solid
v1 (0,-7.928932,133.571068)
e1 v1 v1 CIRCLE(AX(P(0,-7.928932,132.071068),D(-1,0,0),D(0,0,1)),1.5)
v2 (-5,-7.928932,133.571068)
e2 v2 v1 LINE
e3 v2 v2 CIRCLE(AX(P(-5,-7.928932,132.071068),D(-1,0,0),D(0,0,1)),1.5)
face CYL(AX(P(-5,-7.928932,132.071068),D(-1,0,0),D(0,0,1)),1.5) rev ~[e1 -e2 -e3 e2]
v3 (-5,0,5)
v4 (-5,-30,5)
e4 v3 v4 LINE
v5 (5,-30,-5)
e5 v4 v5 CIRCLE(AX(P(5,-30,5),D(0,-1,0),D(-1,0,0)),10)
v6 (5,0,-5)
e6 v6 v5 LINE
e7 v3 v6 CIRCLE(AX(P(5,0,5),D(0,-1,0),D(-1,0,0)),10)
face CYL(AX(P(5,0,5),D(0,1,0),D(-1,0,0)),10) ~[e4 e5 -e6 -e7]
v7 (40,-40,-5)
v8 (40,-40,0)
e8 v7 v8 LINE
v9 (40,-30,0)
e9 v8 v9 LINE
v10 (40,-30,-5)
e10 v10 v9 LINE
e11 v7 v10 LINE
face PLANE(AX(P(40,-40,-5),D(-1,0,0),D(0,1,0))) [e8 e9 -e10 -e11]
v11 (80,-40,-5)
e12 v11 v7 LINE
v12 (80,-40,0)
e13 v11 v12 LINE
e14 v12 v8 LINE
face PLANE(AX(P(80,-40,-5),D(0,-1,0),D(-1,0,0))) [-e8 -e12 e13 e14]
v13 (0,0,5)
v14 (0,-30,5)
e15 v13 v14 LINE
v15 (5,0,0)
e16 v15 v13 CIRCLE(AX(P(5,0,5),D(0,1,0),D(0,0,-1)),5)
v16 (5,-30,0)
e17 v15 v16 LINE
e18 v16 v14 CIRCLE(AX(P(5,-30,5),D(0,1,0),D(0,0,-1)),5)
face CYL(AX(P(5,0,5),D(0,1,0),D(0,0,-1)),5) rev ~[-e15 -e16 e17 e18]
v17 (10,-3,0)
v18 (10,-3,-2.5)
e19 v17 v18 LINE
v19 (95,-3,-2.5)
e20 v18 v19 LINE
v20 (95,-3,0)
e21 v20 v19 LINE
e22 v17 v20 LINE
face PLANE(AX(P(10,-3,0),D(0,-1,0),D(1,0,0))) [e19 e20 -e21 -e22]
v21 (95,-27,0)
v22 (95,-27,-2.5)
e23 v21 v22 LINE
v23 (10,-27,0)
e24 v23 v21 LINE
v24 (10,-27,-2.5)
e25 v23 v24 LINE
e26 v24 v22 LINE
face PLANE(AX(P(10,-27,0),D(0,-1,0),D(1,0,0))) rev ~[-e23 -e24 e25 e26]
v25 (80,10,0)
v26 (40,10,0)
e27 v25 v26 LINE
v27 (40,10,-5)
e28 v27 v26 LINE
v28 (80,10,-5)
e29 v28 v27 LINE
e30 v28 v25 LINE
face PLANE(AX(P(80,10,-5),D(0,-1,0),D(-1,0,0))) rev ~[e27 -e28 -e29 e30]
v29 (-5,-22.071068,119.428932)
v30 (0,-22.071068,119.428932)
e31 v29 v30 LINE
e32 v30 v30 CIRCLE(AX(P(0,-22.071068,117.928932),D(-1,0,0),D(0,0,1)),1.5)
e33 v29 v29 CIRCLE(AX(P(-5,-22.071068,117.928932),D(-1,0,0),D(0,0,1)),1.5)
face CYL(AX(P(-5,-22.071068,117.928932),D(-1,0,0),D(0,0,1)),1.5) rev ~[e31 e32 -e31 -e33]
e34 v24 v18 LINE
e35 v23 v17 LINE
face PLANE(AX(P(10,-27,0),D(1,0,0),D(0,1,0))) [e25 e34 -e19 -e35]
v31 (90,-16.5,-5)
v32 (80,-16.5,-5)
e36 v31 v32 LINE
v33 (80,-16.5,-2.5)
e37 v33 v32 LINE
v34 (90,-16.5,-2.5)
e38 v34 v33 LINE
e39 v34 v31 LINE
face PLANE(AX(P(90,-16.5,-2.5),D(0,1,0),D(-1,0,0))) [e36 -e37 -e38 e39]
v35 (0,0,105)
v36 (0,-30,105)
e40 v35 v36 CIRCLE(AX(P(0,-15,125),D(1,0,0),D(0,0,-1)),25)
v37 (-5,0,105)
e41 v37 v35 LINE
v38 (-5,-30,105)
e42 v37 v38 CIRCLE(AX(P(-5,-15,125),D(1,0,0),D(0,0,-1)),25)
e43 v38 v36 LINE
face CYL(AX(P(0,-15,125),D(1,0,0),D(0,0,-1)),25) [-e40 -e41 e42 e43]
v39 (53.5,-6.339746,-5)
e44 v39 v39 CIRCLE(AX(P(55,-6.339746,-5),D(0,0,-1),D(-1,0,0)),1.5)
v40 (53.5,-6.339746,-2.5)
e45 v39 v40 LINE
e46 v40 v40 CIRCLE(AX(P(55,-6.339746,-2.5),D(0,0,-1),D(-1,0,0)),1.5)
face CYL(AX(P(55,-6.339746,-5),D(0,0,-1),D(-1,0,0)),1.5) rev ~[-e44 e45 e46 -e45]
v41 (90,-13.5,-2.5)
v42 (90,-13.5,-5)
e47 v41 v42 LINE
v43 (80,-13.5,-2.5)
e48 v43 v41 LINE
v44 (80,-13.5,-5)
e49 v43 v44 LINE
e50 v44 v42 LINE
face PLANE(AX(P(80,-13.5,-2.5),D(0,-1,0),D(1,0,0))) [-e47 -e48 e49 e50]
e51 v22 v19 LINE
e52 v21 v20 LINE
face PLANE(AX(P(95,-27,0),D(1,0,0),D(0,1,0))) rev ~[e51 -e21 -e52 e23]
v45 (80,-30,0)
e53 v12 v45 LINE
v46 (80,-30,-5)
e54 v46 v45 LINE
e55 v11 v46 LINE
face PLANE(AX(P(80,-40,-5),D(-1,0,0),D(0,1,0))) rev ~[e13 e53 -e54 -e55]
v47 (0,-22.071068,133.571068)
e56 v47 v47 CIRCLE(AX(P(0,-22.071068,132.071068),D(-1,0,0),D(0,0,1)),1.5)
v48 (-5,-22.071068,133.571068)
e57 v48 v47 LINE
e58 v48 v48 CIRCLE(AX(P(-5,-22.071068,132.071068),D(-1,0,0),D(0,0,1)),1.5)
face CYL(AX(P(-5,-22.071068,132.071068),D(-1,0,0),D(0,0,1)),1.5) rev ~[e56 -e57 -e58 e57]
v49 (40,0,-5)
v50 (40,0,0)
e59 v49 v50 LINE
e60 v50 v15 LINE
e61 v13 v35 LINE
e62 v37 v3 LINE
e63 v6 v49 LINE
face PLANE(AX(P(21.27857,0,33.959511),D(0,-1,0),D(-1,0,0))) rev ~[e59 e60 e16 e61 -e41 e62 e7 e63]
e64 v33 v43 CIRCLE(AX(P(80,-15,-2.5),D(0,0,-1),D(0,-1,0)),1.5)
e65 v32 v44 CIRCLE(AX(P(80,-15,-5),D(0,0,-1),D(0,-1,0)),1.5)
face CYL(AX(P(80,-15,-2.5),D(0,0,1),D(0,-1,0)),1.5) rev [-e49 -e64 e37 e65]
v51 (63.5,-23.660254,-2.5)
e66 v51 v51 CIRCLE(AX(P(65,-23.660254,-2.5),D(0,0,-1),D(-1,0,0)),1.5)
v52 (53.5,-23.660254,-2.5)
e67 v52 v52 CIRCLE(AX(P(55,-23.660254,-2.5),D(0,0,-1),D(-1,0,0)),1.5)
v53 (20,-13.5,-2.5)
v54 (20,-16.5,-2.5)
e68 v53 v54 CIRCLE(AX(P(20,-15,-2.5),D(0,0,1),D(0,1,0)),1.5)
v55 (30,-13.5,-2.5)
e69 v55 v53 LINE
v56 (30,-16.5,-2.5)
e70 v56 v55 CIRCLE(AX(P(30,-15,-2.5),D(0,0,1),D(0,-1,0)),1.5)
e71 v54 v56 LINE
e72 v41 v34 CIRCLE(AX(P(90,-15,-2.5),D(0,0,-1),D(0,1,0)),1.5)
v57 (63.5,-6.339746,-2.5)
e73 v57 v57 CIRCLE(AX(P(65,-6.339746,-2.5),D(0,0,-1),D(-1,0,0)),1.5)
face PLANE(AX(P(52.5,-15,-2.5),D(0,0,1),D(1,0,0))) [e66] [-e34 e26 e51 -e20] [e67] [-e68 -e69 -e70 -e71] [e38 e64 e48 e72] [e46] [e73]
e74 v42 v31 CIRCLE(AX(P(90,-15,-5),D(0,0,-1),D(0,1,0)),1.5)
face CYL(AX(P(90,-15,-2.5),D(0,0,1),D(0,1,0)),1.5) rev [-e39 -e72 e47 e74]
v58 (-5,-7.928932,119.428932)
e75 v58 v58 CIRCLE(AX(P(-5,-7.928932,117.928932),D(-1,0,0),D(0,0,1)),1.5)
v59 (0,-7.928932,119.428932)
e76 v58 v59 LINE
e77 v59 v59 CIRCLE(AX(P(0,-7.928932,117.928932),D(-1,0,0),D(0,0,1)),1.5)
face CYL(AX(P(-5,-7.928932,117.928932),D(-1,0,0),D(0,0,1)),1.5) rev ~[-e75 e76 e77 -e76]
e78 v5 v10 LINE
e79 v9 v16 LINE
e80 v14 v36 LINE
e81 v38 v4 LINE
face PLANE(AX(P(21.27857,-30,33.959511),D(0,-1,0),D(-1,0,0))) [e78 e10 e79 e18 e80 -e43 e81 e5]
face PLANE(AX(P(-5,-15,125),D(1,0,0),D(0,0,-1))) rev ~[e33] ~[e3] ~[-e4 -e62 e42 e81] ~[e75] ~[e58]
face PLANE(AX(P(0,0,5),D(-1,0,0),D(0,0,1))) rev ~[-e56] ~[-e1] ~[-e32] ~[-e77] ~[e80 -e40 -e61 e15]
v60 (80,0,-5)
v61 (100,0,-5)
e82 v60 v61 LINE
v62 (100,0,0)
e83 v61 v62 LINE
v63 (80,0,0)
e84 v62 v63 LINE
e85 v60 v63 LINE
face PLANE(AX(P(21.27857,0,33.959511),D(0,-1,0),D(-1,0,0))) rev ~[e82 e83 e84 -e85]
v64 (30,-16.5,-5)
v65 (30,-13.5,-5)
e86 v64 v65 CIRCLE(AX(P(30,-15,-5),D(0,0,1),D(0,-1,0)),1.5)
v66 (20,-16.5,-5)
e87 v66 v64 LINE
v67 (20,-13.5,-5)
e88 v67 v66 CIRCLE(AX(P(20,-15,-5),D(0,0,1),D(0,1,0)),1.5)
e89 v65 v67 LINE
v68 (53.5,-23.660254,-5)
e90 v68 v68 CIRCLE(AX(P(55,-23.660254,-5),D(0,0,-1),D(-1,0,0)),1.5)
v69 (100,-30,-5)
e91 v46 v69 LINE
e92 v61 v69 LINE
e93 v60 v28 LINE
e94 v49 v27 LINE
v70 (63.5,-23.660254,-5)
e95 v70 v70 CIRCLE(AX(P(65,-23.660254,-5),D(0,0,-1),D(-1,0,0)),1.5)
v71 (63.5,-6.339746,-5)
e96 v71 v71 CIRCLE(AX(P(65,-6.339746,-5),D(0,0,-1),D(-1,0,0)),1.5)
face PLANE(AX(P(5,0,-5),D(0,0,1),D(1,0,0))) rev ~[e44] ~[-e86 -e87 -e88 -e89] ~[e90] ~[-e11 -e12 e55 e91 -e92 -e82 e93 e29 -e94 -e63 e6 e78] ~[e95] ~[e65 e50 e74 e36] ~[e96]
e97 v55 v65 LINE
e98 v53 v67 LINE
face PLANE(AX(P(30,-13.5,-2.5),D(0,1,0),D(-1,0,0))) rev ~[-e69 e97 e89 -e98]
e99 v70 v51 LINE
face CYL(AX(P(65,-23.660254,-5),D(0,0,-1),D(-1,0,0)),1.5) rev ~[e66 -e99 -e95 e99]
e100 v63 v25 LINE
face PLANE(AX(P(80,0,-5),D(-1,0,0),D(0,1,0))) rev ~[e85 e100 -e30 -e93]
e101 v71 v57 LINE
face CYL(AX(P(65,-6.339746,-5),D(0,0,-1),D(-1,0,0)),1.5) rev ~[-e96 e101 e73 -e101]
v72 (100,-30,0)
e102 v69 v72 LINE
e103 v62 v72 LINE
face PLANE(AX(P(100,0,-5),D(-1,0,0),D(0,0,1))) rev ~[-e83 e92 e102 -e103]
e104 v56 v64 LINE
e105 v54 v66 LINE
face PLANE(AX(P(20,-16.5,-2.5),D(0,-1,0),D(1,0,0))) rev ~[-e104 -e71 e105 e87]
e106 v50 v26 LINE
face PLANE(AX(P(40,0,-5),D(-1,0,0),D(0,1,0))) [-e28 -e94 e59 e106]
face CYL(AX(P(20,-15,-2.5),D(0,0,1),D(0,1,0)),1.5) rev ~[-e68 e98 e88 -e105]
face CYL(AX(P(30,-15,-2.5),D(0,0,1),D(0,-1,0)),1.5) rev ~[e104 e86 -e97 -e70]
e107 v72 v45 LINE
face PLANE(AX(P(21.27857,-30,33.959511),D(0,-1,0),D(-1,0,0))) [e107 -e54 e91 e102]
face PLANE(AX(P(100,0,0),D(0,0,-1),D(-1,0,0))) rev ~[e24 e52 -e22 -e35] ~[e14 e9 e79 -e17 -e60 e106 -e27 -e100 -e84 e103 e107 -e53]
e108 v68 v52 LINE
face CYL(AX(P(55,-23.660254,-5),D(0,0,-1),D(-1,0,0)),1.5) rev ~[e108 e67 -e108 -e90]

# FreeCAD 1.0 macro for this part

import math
import FreeCAD as App
import Part
import Sketcher

doc = App.newDocument("Part")
body = doc.addObject("PartDesign::Body", "Body")

sketch1 = doc.addObject("Sketcher::SketchObject", "Sketch")
body.addObject(sketch1)
sketch1.AttachmentSupport = (doc.XZ_Plane, [""])
sketch1.MapMode = "FlatFace"
sketch1.addGeometry(Part.LineSegment(App.Vector(0, 125, 0), App.Vector(0, 5, 0)), False)
sketch1.addGeometry(Part.ArcOfCircle(Part.Circle(App.Vector(5, 5, 0), App.Vector(0, 0, 1), 5), math.radians(180), math.radians(270)), False)
sketch1.addGeometry(Part.LineSegment(App.Vector(5, 0, 0), App.Vector(100, 0, 0)), False)
sketch1.addGeometry(Part.LineSegment(App.Vector(100, 0, 0), App.Vector(100, -5, 0)), False)
sketch1.addGeometry(Part.LineSegment(App.Vector(100, -5, 0), App.Vector(5, -5, 0)), False)
sketch1.addGeometry(Part.ArcOfCircle(Part.Circle(App.Vector(5, 5, 0), App.Vector(0, 0, 1), 10), math.radians(180), math.radians(270)), False)
sketch1.addGeometry(Part.LineSegment(App.Vector(-5, 5, 0), App.Vector(-5, 125, 0)), False)
sketch1.addGeometry(Part.LineSegment(App.Vector(-5, 125, 0), App.Vector(0, 125, 0)), False)
sketch1.addConstraint(Sketcher.Constraint("Tangent", 0, 2, 1, 1))
sketch1.addConstraint(Sketcher.Constraint("Tangent", 1, 2, 2, 1))
sketch1.addConstraint(Sketcher.Constraint("Coincident", 2, 2, 3, 1))
sketch1.addConstraint(Sketcher.Constraint("Coincident", 3, 2, 4, 1))
sketch1.addConstraint(Sketcher.Constraint("Tangent", 4, 2, 5, 2))
sketch1.addConstraint(Sketcher.Constraint("Tangent", 5, 1, 6, 1))
sketch1.addConstraint(Sketcher.Constraint("Coincident", 6, 2, 7, 1))
sketch1.addConstraint(Sketcher.Constraint("Coincident", 7, 2, 0, 1))
sketch1.addConstraint(Sketcher.Constraint("Vertical", 0))
sketch1.addConstraint(Sketcher.Constraint("Horizontal", 2))
sketch1.addConstraint(Sketcher.Constraint("Vertical", 3))
sketch1.addConstraint(Sketcher.Constraint("Horizontal", 4))
sketch1.addConstraint(Sketcher.Constraint("Vertical", 6))
sketch1.addConstraint(Sketcher.Constraint("Horizontal", 7))
sketch1.addConstraint(Sketcher.Constraint("Coincident", 5, 3, 1, 3))
sketch1.addConstraint(Sketcher.Constraint("Symmetric", 4, 2, 5, 1, -1, 1))
sketch1.addConstraint(Sketcher.Constraint("PointOnObject", 0, 2, -2))
sketch1.addConstraint(Sketcher.Constraint("Radius", 1, 5.0))
sketch1.addConstraint(Sketcher.Constraint("DistanceX", 2, 1, 2, 2, 95.0))
sketch1.addConstraint(Sketcher.Constraint("DistanceY", 0, 2, 0, 1, 120.0))
pad1 = doc.addObject("PartDesign::Pad", "Pad")
body.addObject(pad1)
pad1.Profile = sketch1
pad1.Length = 30

sketch2 = doc.addObject("Sketcher::SketchObject", "Sketch001")
body.addObject(sketch2)
sketch2.AttachmentSupport = (doc.YZ_Plane, [""])
sketch2.MapMode = "FlatFace"
sketch2.addGeometry(Part.Circle(App.Vector(-15, 125, 0), App.Vector(0, 0, 1), 25), False)
sketch2.addConstraint(Sketcher.Constraint("Diameter", 0, 50.0))
sketch2.addConstraint(Sketcher.Constraint("DistanceX", 0, 3, -1, 1, 15.0))
sketch2.addConstraint(Sketcher.Constraint("DistanceY", -1, 1, 0, 3, 125.0))
pad2 = doc.addObject("PartDesign::Pad", "Pad001")
body.addObject(pad2)
pad2.Profile = sketch2
pad2.Length = 5
pad2.Reversed = True

sketch3 = doc.addObject("Sketcher::SketchObject", "Sketch002")
body.addObject(sketch3)
sketch3.AttachmentSupport = (doc.XY_Plane, [""])
sketch3.MapMode = "FlatFace"
sketch3.addGeometry(Part.LineSegment(App.Vector(10, -3, 0), App.Vector(10, -27, 0)), False)
sketch3.addGeometry(Part.LineSegment(App.Vector(10, -27, 0), App.Vector(95, -27, 0)), False)
sketch3.addGeometry(Part.LineSegment(App.Vector(95, -27, 0), App.Vector(95, -3, 0)), False)
sketch3.addGeometry(Part.LineSegment(App.Vector(95, -3, 0), App.Vector(10, -3, 0)), False)
sketch3.addConstraint(Sketcher.Constraint("Coincident", 0, 2, 1, 1))
sketch3.addConstraint(Sketcher.Constraint("Coincident", 1, 2, 2, 1))
sketch3.addConstraint(Sketcher.Constraint("Coincident", 2, 2, 3, 1))
sketch3.addConstraint(Sketcher.Constraint("Coincident", 3, 2, 0, 1))
sketch3.addConstraint(Sketcher.Constraint("Vertical", 0))
sketch3.addConstraint(Sketcher.Constraint("Horizontal", 1))
sketch3.addConstraint(Sketcher.Constraint("Vertical", 2))
sketch3.addConstraint(Sketcher.Constraint("Horizontal", 3))
sketch3.addConstraint(Sketcher.Constraint("DistanceX", 1, 1, 1, 2, 85.0))
sketch3.addConstraint(Sketcher.Constraint("DistanceY", 0, 2, 0, 1, 24.0))
sketch3.addConstraint(Sketcher.Constraint("DistanceX", -1, 1, 0, 2, 10.0))
sketch3.addConstraint(Sketcher.Constraint("DistanceY", 0, 2, -1, 1, 27.0))
pocket1 = doc.addObject("PartDesign::Pocket", "Pocket")
body.addObject(pocket1)
pocket1.Profile = sketch3
pocket1.Length = 2.5

sketch4 = doc.addObject("Sketcher::SketchObject", "Sketch003")
body.addObject(sketch4)
sketch4.AttachmentSupport = (doc.YZ_Plane, [""])
sketch4.MapMode = "FlatFace"
sketch4.AttachmentOffset = App.Placement(App.Vector(0, 0, -5), App.Rotation())
sketch4.addGeometry(Part.Circle(App.Vector(-7.9, 132.1, 0), App.Vector(0, 0, 1), 1.5), False)
sketch4.addGeometry(Part.Circle(App.Vector(-22.1, 132.1, 0), App.Vector(0, 0, 1), 1.5), False)
sketch4.addGeometry(Part.Circle(App.Vector(-22.1, 117.9, 0), App.Vector(0, 0, 1), 1.5), False)
sketch4.addGeometry(Part.Circle(App.Vector(-7.9, 117.9, 0), App.Vector(0, 0, 1), 1.5), False)
sketch4.addConstraint(Sketcher.Constraint("Equal", 0, 1))
sketch4.addConstraint(Sketcher.Constraint("Equal", 1, 2))
sketch4.addConstraint(Sketcher.Constraint("Equal", 2, 3))
sketch4.addConstraint(Sketcher.Constraint("Horizontal", 0, 3, 1, 3))
sketch4.addConstraint(Sketcher.Constraint("Horizontal", 2, 3, 3, 3))
sketch4.addConstraint(Sketcher.Constraint("Vertical", 1, 3, 2, 3))
sketch4.addConstraint(Sketcher.Constraint("Vertical", 0, 3, 3, 3))
sketch4.addConstraint(Sketcher.Constraint("Diameter", 0, 3.0))
sketch4.addConstraint(Sketcher.Constraint("DistanceX", 0, 3, -1, 1, 7.928932))
sketch4.addConstraint(Sketcher.Constraint("DistanceY", -1, 1, 0, 3, 132.071068))
sketch4.addConstraint(Sketcher.Constraint("DistanceX", 1, 3, -1, 1, 22.071068))
sketch4.addConstraint(Sketcher.Constraint("DistanceY", -1, 1, 2, 3, 117.928932))
pocket2 = doc.addObject("PartDesign::Pocket", "Pocket001")
body.addObject(pocket2)
pocket2.Profile = sketch4
pocket2.Length = 5
pocket2.Reversed = True

sketch5 = doc.addObject("Sketcher::SketchObject", "Sketch004")
body.addObject(sketch5)
sketch5.AttachmentSupport = (doc.XY_Plane, [""])
sketch5.MapMode = "FlatFace"
sketch5.AttachmentOffset = App.Placement(App.Vector(0, 0, -5), App.Rotation())
sketch5.addGeometry(Part.LineSegment(App.Vector(80, 10, 0), App.Vector(80, 0, 0)), False)
sketch5.addGeometry(Part.LineSegment(App.Vector(80, 0, 0), App.Vector(40, 0, 0)), False)
sketch5.addGeometry(Part.LineSegment(App.Vector(40, 0, 0), App.Vector(40, 10, 0)), False)
sketch5.addGeometry(Part.LineSegment(App.Vector(40, 10, 0), App.Vector(80, 10, 0)), False)
sketch5.addGeometry(Part.LineSegment(App.Vector(80, -30, 0), App.Vector(80, -40, 0)), False)
sketch5.addGeometry(Part.LineSegment(App.Vector(80, -40, 0), App.Vector(40, -40, 0)), False)
sketch5.addGeometry(Part.LineSegment(App.Vector(40, -40, 0), App.Vector(40, -30, 0)), False)
sketch5.addGeometry(Part.LineSegment(App.Vector(40, -30, 0), App.Vector(80, -30, 0)), False)
sketch5.addConstraint(Sketcher.Constraint("Coincident", 0, 2, 1, 1))
sketch5.addConstraint(Sketcher.Constraint("Coincident", 1, 2, 2, 1))
sketch5.addConstraint(Sketcher.Constraint("Coincident", 2, 2, 3, 1))
sketch5.addConstraint(Sketcher.Constraint("Coincident", 3, 2, 0, 1))
sketch5.addConstraint(Sketcher.Constraint("Coincident", 4, 2, 5, 1))
sketch5.addConstraint(Sketcher.Constraint("Coincident", 5, 2, 6, 1))
sketch5.addConstraint(Sketcher.Constraint("Coincident", 6, 2, 7, 1))
sketch5.addConstraint(Sketcher.Constraint("Coincident", 7, 2, 4, 1))
sketch5.addConstraint(Sketcher.Constraint("Vertical", 0))
sketch5.addConstraint(Sketcher.Constraint("Horizontal", 1))
sketch5.addConstraint(Sketcher.Constraint("Vertical", 2))
sketch5.addConstraint(Sketcher.Constraint("Horizontal", 3))
sketch5.addConstraint(Sketcher.Constraint("Vertical", 4))
sketch5.addConstraint(Sketcher.Constraint("Horizontal", 5))
sketch5.addConstraint(Sketcher.Constraint("Vertical", 6))
sketch5.addConstraint(Sketcher.Constraint("Horizontal", 7))
sketch5.addConstraint(Sketcher.Constraint("PointOnObject", 0, 2, -1))
sketch5.addConstraint(Sketcher.Constraint("Vertical", 3, 2, 4, 2))
sketch5.addConstraint(Sketcher.Constraint("Vertical", 2, 2, 5, 2))
sketch5.addConstraint(Sketcher.Constraint("Equal", 2, 4))
sketch5.addConstraint(Sketcher.Constraint("DistanceX", 1, 2, 1, 1, 40.0))
sketch5.addConstraint(Sketcher.Constraint("DistanceY", 0, 2, 0, 1, 10.0))
sketch5.addConstraint(Sketcher.Constraint("DistanceX", -1, 1, 0, 2, 80.0))
sketch5.addConstraint(Sketcher.Constraint("DistanceY", 4, 2, -1, 1, 40.0))
pad3 = doc.addObject("PartDesign::Pad", "Pad002")
body.addObject(pad3)
pad3.Profile = sketch5
pad3.Length = 5

sketch6 = doc.addObject("Sketcher::SketchObject", "Sketch005")
body.addObject(sketch6)
sketch6.AttachmentSupport = (doc.XY_Plane, [""])
sketch6.MapMode = "FlatFace"
sketch6.AttachmentOffset = App.Placement(App.Vector(0, 0, -2.5), App.Rotation())
sketch6.addGeometry(Part.LineSegment(App.Vector(80, -16.5, 0), App.Vector(90, -16.5, 0)), False)
sketch6.addGeometry(Part.ArcOfCircle(Part.Circle(App.Vector(90, -15, 0), App.Vector(0, 0, 1), 1.5), math.radians(-90), math.radians(90)), False)
sketch6.addGeometry(Part.LineSegment(App.Vector(90, -13.5, 0), App.Vector(80, -13.5, 0)), False)
sketch6.addGeometry(Part.ArcOfCircle(Part.Circle(App.Vector(80, -15, 0), App.Vector(0, 0, 1), 1.5), math.radians(90), math.radians(270)), False)
sketch6.addGeometry(Part.LineSegment(App.Vector(20, -16.5, 0), App.Vector(30, -16.5, 0)), False)
sketch6.addGeometry(Part.ArcOfCircle(Part.Circle(App.Vector(30, -15, 0), App.Vector(0, 0, 1), 1.5), math.radians(-90), math.radians(90)), False)
sketch6.addGeometry(Part.LineSegment(App.Vector(30, -13.5, 0), App.Vector(20, -13.5, 0)), False)
sketch6.addGeometry(Part.ArcOfCircle(Part.Circle(App.Vector(20, -15, 0), App.Vector(0, 0, 1), 1.5), math.radians(90), math.radians(270)), False)
sketch6.addConstraint(Sketcher.Constraint("Tangent", 0, 2, 1, 1))
sketch6.addConstraint(Sketcher.Constraint("Tangent", 1, 2, 2, 1))
sketch6.addConstraint(Sketcher.Constraint("Tangent", 2, 2, 3, 1))
sketch6.addConstraint(Sketcher.Constraint("Tangent", 3, 2, 0, 1))
sketch6.addConstraint(Sketcher.Constraint("Tangent", 4, 2, 5, 1))
sketch6.addConstraint(Sketcher.Constraint("Tangent", 5, 2, 6, 1))
sketch6.addConstraint(Sketcher.Constraint("Tangent", 6, 2, 7, 1))
sketch6.addConstraint(Sketcher.Constraint("Tangent", 7, 2, 4, 1))
sketch6.addConstraint(Sketcher.Constraint("Horizontal", 0))
sketch6.addConstraint(Sketcher.Constraint("Horizontal", 2))
sketch6.addConstraint(Sketcher.Constraint("Horizontal", 4))
sketch6.addConstraint(Sketcher.Constraint("Horizontal", 6))
sketch6.addConstraint(Sketcher.Constraint("Equal", 3, 5))
sketch6.addConstraint(Sketcher.Constraint("Horizontal", 3, 3, 5, 3))
sketch6.addConstraint(Sketcher.Constraint("Equal", 2, 4))
sketch6.addConstraint(Sketcher.Constraint("Radius", 1, 1.5))
sketch6.addConstraint(Sketcher.Constraint("DistanceX", 0, 1, 0, 2, 10.0))
sketch6.addConstraint(Sketcher.Constraint("DistanceX", -1, 1, 1, 3, 90.0))
sketch6.addConstraint(Sketcher.Constraint("DistanceY", 1, 3, -1, 1, 15.0))
sketch6.addConstraint(Sketcher.Constraint("DistanceX", -1, 1, 5, 3, 30.0))
pocket3 = doc.addObject("PartDesign::Pocket", "Pocket002")
body.addObject(pocket3)
pocket3.Profile = sketch6
pocket3.Length = 2.5

sketch7 = doc.addObject("Sketcher::SketchObject", "Sketch006")
body.addObject(sketch7)
sketch7.AttachmentSupport = (doc.XY_Plane, [""])
sketch7.MapMode = "FlatFace"
sketch7.AttachmentOffset = App.Placement(App.Vector(0, 0, -5), App.Rotation())
sketch7.addGeometry(Part.Circle(App.Vector(65, -6.3, 0), App.Vector(0, 0, 1), 1.5), False)
sketch7.addGeometry(Part.Circle(App.Vector(55, -6.3, 0), App.Vector(0, 0, 1), 1.5), False)
sketch7.addGeometry(Part.Circle(App.Vector(55, -23.7, 0), App.Vector(0, 0, 1), 1.5), False)
sketch7.addGeometry(Part.Circle(App.Vector(65, -23.7, 0), App.Vector(0, 0, 1), 1.5), False)
sketch7.addConstraint(Sketcher.Constraint("Equal", 0, 1))
sketch7.addConstraint(Sketcher.Constraint("Equal", 1, 2))
sketch7.addConstraint(Sketcher.Constraint("Equal", 2, 3))
sketch7.addConstraint(Sketcher.Constraint("Horizontal", 0, 3, 1, 3))
sketch7.addConstraint(Sketcher.Constraint("Horizontal", 2, 3, 3, 3))
sketch7.addConstraint(Sketcher.Constraint("Vertical", 1, 3, 2, 3))
sketch7.addConstraint(Sketcher.Constraint("Vertical", 0, 3, 3, 3))
sketch7.addConstraint(Sketcher.Constraint("Diameter", 0, 3.0))
sketch7.addConstraint(Sketcher.Constraint("DistanceX", -1, 1, 0, 3, 65.0))
sketch7.addConstraint(Sketcher.Constraint("DistanceX", -1, 1, 1, 3, 55.0))
sketch7.addConstraint(Sketcher.Constraint("DistanceY", 2, 3, 1, 3, 17.320508))
sketch7.addConstraint(Sketcher.Constraint("DistanceY", 0, 3, -1, 1, 6.339746))
pocket4 = doc.addObject("PartDesign::Pocket", "Pocket003")
body.addObject(pocket4)
pocket4.Profile = sketch7
pocket4.Type = "ThroughAll"
pocket4.Reversed = True

doc.recompute()
